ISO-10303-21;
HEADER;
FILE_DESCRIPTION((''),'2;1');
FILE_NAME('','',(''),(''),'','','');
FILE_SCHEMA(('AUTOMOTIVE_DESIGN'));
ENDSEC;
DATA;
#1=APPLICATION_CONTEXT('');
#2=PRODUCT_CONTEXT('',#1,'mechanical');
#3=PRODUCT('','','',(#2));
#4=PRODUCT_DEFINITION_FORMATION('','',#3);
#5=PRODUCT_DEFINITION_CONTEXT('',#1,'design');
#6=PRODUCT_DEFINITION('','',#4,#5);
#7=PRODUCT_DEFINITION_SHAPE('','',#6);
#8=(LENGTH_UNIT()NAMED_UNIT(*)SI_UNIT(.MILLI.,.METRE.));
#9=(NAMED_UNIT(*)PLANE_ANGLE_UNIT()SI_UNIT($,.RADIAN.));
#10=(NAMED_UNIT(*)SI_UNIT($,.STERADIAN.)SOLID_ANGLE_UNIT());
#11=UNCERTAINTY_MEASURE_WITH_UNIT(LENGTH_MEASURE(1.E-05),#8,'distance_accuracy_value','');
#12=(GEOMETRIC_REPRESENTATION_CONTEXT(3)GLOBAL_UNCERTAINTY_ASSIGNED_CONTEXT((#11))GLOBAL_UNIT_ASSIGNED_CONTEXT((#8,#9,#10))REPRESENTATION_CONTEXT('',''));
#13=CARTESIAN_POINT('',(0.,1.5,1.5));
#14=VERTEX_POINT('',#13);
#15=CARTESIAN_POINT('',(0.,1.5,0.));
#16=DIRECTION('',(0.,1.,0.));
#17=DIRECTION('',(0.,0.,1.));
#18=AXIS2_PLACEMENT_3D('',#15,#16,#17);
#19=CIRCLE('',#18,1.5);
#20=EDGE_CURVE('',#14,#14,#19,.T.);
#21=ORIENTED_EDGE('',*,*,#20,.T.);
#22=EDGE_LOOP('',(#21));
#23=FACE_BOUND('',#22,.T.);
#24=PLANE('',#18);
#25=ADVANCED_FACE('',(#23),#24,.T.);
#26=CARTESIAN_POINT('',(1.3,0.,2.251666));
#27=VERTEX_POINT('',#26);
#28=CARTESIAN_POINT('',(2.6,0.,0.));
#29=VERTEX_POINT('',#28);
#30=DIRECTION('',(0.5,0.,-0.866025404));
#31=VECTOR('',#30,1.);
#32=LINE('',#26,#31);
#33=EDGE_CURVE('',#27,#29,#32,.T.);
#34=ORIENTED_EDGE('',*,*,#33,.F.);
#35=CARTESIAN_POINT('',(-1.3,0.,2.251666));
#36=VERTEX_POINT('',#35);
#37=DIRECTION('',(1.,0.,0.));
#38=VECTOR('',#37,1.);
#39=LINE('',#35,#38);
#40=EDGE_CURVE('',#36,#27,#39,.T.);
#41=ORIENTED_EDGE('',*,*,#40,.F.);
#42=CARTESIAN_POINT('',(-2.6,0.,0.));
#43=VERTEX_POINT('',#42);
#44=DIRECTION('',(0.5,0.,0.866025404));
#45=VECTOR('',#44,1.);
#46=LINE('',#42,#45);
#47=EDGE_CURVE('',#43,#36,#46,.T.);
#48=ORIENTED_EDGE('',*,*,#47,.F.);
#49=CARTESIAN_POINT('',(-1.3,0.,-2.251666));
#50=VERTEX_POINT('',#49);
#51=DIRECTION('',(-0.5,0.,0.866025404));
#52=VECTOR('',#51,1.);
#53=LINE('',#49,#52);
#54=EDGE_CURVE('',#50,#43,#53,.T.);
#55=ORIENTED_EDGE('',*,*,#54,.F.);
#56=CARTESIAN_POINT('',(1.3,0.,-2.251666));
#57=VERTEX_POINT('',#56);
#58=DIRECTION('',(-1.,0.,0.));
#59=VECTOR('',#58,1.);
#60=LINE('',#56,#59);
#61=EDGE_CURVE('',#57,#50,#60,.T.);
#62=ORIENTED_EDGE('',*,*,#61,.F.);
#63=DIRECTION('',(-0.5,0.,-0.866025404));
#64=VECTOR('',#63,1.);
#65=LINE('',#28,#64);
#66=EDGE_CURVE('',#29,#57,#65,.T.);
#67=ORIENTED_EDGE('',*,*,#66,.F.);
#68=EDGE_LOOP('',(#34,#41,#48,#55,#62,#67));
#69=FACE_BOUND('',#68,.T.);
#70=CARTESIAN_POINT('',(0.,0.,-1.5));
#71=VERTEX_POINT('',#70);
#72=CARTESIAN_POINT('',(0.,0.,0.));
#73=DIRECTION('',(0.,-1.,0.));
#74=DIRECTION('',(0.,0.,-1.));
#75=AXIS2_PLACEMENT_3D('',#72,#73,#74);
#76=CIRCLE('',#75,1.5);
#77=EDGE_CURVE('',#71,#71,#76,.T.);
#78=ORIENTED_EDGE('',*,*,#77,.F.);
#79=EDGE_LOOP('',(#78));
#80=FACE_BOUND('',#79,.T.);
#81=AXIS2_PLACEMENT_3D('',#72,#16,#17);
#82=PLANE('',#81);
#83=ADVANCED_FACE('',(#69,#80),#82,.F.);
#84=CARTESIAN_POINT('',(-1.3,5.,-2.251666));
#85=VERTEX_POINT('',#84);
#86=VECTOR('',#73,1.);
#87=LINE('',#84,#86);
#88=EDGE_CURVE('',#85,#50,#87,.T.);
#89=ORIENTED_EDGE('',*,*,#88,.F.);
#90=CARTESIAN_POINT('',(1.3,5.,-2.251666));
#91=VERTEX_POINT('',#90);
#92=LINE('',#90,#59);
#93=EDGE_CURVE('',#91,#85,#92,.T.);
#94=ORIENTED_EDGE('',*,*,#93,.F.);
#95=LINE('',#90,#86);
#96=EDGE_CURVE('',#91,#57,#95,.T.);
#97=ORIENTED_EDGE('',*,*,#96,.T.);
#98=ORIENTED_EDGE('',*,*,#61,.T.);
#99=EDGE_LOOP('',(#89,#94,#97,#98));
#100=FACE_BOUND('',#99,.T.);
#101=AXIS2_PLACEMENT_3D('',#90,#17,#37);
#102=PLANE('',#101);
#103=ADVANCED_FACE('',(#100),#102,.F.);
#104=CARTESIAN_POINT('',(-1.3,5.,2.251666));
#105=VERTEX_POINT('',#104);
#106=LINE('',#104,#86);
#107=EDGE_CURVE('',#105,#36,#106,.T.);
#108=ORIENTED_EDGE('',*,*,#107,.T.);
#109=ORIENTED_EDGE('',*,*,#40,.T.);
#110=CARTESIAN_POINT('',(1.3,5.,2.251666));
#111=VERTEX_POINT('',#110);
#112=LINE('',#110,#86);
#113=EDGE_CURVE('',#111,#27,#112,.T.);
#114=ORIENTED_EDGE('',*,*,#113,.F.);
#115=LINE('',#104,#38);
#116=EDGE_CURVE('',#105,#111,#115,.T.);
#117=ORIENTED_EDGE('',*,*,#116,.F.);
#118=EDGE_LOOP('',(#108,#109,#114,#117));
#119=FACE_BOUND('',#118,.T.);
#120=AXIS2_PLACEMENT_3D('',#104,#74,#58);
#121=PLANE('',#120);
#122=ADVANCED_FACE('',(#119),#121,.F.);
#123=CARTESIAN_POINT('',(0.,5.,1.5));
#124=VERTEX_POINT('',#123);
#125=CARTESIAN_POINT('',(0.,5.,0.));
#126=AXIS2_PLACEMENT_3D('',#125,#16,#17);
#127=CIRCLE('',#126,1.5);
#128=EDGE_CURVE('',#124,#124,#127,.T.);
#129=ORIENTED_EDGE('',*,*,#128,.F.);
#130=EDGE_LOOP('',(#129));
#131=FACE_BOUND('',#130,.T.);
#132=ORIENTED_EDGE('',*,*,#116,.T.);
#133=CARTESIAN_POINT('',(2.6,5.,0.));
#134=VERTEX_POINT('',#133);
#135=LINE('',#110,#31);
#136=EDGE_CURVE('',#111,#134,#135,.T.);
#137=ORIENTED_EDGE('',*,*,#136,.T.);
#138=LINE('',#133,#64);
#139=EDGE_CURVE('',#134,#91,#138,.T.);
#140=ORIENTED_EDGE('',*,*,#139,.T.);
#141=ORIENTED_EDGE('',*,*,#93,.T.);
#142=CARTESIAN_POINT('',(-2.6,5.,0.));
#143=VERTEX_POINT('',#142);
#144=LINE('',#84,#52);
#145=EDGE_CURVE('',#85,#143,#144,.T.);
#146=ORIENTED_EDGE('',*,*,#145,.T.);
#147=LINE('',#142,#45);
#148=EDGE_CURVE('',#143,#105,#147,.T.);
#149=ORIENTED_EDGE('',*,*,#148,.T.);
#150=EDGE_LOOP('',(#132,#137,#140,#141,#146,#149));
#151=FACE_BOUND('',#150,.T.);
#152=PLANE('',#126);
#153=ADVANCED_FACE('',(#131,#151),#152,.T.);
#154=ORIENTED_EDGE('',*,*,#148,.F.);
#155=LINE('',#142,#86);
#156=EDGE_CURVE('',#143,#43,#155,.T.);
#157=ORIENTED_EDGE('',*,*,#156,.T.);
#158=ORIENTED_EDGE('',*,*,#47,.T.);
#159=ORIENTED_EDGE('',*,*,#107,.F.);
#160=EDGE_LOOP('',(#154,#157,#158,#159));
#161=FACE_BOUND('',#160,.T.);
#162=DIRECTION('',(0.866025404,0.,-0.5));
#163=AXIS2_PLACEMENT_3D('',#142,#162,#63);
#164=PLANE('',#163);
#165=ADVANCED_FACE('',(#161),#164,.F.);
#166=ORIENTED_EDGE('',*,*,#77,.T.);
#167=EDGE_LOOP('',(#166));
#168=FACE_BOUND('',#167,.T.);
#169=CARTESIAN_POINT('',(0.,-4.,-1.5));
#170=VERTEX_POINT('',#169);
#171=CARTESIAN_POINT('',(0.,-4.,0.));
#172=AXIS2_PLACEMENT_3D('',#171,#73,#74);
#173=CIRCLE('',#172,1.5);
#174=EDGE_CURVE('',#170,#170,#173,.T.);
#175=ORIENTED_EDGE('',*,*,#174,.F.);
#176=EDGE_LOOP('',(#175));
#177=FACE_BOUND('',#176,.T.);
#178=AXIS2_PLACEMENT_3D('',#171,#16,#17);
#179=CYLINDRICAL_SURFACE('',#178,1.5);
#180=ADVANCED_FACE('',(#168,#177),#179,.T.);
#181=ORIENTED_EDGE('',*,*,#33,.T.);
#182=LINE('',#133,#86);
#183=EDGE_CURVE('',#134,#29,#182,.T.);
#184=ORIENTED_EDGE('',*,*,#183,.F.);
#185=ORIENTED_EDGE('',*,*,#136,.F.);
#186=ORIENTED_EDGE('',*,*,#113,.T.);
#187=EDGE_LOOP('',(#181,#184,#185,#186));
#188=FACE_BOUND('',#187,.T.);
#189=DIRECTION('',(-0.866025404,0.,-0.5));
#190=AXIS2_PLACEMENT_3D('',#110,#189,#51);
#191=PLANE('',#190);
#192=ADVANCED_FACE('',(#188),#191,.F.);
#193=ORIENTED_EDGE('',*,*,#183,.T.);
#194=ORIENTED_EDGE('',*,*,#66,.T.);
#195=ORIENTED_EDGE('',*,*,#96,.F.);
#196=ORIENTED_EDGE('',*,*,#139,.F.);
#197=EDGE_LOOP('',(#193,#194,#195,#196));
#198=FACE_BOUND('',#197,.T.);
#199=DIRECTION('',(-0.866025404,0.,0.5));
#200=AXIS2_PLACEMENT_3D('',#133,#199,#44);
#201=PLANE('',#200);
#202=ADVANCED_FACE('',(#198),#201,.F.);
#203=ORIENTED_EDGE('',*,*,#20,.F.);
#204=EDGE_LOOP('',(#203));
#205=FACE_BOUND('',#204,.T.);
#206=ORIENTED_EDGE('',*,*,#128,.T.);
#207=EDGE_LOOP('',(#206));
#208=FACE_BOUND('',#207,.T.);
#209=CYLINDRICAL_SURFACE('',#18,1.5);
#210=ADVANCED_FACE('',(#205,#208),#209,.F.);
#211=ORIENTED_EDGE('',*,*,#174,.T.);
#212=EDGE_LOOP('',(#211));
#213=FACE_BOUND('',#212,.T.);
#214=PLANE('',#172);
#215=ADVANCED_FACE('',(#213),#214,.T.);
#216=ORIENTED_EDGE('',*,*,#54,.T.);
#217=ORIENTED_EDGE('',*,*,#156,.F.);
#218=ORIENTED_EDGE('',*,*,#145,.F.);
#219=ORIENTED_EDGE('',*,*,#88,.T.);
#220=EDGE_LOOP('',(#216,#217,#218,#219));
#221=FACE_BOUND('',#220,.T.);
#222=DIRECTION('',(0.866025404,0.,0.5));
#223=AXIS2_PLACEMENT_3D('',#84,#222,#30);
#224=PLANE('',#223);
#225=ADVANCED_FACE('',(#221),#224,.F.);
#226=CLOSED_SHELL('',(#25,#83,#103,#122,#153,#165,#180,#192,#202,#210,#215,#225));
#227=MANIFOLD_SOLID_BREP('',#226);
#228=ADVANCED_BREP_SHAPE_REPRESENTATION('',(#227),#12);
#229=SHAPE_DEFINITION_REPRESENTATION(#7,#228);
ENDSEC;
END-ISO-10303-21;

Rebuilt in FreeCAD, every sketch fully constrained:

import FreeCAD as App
import Part
import Sketcher
Q = App.Units.Quantity

doc = App.newDocument("Part")
body = doc.addObject("PartDesign::Body", "Body")

# Sketch on XZ plane
sketch1 = body.newObject("Sketcher::SketchObject", "Sketch")
sketch1.AttachmentSupport = (doc.getObject("XZ_Plane"), [""])
sketch1.MapMode = "FlatFace"
sketch1.addGeometry([
    Part.LineSegment(App.Vector(2.6, 0, 0), App.Vector(1.3, -2.3, 0)),  # 0
    Part.LineSegment(App.Vector(1.3, -2.3, 0), App.Vector(-1.3, -2.3, 0)),  # 1
    Part.LineSegment(App.Vector(-1.3, -2.3, 0), App.Vector(-2.6, 0, 0)),  # 2
    Part.LineSegment(App.Vector(-2.6, 0, 0), App.Vector(-1.3, 2.3, 0)),  # 3
    Part.LineSegment(App.Vector(-1.3, 2.3, 0), App.Vector(1.3, 2.3, 0)),  # 4
    Part.LineSegment(App.Vector(1.3, 2.3, 0), App.Vector(2.6, 0, 0)),  # 5
], False)
sketch1.addConstraint([
    Sketcher.Constraint("Coincident", 0, 2, 1, 1),
    Sketcher.Constraint("Coincident", 1, 2, 2, 1),
    Sketcher.Constraint("Coincident", 2, 2, 3, 1),
    Sketcher.Constraint("Coincident", 3, 2, 4, 1),
    Sketcher.Constraint("Coincident", 4, 2, 5, 1),
    Sketcher.Constraint("Coincident", 5, 2, 0, 1),
    Sketcher.Constraint("Horizontal", 1),
    Sketcher.Constraint("Horizontal", 4),
    Sketcher.Constraint("Symmetric", 0, 2, 3, 2, -1, 1),
    Sketcher.Constraint("Symmetric", 2, 2, 5, 2, -1, 1),
    Sketcher.Constraint("PointOnObject", 2, 2, -1),
    Sketcher.Constraint("Parallel", 2, 5),
    Sketcher.Constraint("Vertical", 1, 2, 3, 2),
    Sketcher.Constraint("Angle", 0, Q("-120 deg")),
    Sketcher.Constraint("DistanceX", 1, 2, 1, 1, Q("2.6 mm")),
    Sketcher.Constraint("Distance", 0, Q("2.6 mm")),
])
pad1 = body.newObject("PartDesign::Pad", "Pad")
pad1.Profile = sketch1
pad1.Length = 5
pad1.Reversed = True

# Sketch on XZ plane
sketch2 = body.newObject("Sketcher::SketchObject", "Sketch001")
sketch2.AttachmentSupport = (doc.getObject("XZ_Plane"), [""])
sketch2.MapMode = "FlatFace"
sketch2.AttachmentOffset = App.Placement(App.Vector(0, 0, -5), App.Rotation())
sketch2.addGeometry(Part.Circle(App.Vector(0, 0, 0), App.Vector(0, 0, 1), 1.5), False)
sketch2.addConstraint([
    Sketcher.Constraint("Coincident", 0, 3, -1, 1),
    Sketcher.Constraint("Diameter", 0, Q("3 mm")),
])
pocket1 = body.newObject("PartDesign::Pocket", "Pocket")
pocket1.Profile = sketch2
pocket1.Length = 3.5
pocket1.Reversed = True

# Sketch on XZ plane
sketch3 = body.newObject("Sketcher::SketchObject", "Sketch002")
sketch3.AttachmentSupport = (doc.getObject("XZ_Plane"), [""])
sketch3.MapMode = "FlatFace"
sketch3.addGeometry(Part.Circle(App.Vector(0, 0, 0), App.Vector(0, 0, 1), 1.5), False)
sketch3.addConstraint([
    Sketcher.Constraint("Coincident", 0, 3, -1, 1),
    Sketcher.Constraint("Diameter", 0, Q("3 mm")),
])
pad2 = body.newObject("PartDesign::Pad", "Pad001")
pad2.Profile = sketch3
pad2.Length = 4

doc.recompute()
